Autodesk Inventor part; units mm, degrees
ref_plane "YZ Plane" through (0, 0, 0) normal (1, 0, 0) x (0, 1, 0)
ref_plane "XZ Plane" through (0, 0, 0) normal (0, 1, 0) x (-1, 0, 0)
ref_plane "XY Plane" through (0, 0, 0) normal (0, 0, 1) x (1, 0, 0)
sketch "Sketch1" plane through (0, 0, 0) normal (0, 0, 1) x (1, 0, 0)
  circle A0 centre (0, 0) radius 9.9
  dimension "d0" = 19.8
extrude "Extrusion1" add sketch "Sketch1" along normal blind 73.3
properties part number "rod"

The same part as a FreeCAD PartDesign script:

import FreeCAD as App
import Part
import Sketcher
from FreeCAD import Vector
Q = App.Units.Quantity

doc = App.newDocument("Part")
body = doc.addObject("PartDesign::Body", "Body")

# Sketch on XY plane
sketch1 = body.newObject("Sketcher::SketchObject", "Sketch")
sketch1.AttachmentSupport = (doc.getObject("XY_Plane"), [""])
sketch1.MapMode = "FlatFace"
sketch1.addGeometry(Part.Circle(Vector(0, 0, 0), Vector(0, 0, 1), 10), False)
sketch1.addConstraint([
    Sketcher.Constraint("Coincident", 0, 3, -1, 1),
    Sketcher.Constraint("Diameter", 0, Q("19.8 mm")),
])
pad1 = body.newObject("PartDesign::Pad", "Pad")
pad1.Profile = sketch1
pad1.Length = 73.3

doc.recompute()
